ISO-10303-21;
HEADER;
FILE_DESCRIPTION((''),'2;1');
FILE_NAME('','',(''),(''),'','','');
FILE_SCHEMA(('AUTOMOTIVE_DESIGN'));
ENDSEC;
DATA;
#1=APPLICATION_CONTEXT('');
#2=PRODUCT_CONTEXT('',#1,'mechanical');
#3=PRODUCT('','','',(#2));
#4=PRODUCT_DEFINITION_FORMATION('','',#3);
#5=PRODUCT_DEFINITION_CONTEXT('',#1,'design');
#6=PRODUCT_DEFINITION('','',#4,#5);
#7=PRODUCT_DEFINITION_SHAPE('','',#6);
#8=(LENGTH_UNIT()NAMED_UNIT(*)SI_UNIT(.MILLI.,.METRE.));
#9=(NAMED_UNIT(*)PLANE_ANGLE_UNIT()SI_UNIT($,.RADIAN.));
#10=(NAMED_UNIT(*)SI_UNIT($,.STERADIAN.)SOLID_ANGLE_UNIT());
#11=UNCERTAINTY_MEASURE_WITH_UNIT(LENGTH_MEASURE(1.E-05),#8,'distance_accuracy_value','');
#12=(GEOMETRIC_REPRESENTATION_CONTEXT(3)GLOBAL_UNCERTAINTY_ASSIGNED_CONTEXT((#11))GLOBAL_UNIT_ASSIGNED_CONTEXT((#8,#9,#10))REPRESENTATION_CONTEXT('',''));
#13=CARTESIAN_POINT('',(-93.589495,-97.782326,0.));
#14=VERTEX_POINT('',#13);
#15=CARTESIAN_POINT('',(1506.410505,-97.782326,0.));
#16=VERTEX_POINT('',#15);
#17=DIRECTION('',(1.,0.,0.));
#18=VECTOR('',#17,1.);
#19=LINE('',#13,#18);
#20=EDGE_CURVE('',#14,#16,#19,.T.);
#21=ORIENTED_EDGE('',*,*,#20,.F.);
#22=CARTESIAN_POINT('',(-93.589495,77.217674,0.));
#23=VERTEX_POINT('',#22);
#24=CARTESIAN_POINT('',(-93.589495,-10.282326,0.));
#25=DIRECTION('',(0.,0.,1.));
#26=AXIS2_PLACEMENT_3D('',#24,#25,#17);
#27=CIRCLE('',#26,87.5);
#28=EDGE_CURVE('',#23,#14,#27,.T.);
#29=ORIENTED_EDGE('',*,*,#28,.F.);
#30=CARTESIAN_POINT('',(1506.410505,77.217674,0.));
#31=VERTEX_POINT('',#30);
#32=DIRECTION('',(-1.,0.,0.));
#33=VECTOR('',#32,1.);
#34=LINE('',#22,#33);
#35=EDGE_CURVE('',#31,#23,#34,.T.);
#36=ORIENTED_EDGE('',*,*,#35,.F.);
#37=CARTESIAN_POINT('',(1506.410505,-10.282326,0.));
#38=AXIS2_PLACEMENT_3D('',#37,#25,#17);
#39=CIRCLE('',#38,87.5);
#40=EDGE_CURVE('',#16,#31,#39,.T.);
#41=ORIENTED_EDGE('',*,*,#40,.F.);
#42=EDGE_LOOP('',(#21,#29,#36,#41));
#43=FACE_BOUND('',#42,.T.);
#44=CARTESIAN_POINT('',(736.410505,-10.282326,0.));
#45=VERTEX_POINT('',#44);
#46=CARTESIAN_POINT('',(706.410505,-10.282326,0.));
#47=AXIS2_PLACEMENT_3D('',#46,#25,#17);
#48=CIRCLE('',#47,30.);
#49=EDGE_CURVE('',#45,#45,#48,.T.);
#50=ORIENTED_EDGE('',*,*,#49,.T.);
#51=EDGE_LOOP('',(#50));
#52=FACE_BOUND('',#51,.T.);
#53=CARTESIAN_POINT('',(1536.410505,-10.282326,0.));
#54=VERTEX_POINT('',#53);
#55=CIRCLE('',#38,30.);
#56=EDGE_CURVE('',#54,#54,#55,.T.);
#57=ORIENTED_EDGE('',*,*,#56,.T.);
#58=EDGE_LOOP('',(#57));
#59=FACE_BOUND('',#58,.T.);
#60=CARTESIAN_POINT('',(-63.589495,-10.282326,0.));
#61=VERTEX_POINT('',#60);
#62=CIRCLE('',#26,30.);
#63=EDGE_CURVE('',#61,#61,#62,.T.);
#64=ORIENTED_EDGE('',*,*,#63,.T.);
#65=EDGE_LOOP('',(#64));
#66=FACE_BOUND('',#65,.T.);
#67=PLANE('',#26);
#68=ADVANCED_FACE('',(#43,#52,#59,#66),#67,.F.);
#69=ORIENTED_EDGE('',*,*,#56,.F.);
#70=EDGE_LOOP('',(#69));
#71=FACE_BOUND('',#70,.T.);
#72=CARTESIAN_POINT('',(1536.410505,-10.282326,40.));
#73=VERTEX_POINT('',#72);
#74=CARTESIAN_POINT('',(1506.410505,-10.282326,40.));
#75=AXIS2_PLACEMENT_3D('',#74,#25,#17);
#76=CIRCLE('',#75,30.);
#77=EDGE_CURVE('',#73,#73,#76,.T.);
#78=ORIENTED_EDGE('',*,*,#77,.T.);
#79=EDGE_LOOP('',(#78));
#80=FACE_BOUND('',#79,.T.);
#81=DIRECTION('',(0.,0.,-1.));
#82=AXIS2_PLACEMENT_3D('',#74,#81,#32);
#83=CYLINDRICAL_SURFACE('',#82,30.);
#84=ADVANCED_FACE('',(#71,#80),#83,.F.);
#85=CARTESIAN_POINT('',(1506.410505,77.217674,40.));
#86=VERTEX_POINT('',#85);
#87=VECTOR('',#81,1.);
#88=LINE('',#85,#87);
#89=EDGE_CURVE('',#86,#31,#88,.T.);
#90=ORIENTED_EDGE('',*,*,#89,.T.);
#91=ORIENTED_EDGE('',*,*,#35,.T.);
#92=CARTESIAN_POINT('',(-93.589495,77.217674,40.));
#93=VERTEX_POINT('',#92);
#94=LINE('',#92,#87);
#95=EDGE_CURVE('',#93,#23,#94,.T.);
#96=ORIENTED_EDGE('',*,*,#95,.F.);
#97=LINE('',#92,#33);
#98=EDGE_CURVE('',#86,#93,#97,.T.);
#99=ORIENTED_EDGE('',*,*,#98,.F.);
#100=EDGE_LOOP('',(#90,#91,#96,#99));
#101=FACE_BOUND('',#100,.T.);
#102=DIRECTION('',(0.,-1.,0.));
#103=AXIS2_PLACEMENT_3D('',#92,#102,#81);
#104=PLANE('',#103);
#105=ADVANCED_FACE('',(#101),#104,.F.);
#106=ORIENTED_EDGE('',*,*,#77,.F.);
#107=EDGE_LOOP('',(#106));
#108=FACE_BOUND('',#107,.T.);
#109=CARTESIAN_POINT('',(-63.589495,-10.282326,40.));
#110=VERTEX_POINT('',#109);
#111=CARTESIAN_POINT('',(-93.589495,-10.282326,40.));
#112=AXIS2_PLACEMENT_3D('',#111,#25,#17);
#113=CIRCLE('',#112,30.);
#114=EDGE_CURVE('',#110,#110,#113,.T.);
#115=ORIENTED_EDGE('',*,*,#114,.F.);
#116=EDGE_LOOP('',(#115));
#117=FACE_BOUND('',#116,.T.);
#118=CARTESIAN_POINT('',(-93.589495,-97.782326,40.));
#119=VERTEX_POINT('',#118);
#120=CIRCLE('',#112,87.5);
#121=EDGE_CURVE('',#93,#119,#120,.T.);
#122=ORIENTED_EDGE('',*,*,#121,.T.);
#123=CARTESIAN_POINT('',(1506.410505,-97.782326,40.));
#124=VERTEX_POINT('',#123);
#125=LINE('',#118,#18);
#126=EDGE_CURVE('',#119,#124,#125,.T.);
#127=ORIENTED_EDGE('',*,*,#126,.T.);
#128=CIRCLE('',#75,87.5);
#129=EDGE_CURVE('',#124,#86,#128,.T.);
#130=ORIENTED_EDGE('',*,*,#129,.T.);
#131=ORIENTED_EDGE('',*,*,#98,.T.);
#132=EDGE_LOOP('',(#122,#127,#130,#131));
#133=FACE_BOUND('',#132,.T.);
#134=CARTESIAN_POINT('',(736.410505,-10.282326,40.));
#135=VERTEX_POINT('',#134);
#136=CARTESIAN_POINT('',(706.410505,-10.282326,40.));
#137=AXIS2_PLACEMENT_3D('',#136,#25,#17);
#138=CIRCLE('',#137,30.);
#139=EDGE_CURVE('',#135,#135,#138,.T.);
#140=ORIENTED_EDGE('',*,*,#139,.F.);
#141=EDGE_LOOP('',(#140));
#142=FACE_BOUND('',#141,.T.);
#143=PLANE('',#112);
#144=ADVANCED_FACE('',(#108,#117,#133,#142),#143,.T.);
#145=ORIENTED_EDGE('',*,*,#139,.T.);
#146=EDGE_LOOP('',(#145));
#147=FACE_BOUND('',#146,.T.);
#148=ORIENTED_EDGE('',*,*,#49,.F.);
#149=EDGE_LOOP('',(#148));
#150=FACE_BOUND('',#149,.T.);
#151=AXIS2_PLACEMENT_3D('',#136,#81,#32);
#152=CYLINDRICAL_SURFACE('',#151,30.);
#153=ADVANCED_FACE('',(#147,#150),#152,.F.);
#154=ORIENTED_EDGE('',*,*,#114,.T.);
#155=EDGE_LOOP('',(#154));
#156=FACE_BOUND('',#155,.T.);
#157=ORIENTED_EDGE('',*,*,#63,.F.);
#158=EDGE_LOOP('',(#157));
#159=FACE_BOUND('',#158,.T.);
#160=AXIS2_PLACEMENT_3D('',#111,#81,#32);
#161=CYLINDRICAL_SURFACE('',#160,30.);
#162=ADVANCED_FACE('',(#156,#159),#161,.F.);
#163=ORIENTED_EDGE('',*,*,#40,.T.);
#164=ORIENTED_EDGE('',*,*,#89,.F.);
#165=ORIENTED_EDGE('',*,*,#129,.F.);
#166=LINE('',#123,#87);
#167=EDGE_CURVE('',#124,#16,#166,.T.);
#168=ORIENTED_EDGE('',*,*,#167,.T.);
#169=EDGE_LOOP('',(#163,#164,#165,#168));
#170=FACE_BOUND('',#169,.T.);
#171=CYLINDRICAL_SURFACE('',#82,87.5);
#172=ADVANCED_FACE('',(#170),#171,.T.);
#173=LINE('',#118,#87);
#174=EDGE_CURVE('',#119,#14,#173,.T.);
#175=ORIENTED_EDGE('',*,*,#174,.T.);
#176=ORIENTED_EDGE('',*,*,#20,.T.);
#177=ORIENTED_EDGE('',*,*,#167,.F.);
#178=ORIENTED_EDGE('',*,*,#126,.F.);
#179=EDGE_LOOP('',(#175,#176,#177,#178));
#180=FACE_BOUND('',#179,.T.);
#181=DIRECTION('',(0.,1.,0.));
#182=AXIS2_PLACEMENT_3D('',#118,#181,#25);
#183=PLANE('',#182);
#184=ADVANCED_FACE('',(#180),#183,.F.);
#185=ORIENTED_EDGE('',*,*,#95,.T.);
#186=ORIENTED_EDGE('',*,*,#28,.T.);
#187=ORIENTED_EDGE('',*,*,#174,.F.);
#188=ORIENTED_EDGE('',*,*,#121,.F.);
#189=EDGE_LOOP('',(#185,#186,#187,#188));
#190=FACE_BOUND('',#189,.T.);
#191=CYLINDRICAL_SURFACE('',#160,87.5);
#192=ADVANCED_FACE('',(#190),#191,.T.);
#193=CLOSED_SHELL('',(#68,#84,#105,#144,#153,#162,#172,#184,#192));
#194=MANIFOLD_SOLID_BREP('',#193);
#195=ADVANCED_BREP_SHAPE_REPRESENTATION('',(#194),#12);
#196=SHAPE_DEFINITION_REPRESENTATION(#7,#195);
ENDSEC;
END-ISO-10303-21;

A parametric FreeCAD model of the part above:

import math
import FreeCAD as App
import Part
import Sketcher
Q = App.Units.Quantity

doc = App.newDocument("Part")
body = doc.addObject("PartDesign::Body", "Body")

# Sketch on XY plane
sketch1 = doc.addObject("Sketcher::SketchObject", "Sketch")
body.addObject(sketch1)
sketch1.AttachmentSupport = (doc.XY_Plane, [""])
sketch1.MapMode = "FlatFace"
sketch1.addGeometry(Part.LineSegment(App.Vector(1506, 77, 0), App.Vector(-94, 77, 0)), False)
sketch1.addGeometry(Part.ArcOfCircle(Part.Circle(App.Vector(-94, -10, 0), App.Vector(0, 0, 1), 88), math.radians(90), math.radians(270)), False)
sketch1.addGeometry(Part.LineSegment(App.Vector(-94, -98, 0), App.Vector(1506, -98, 0)), False)
sketch1.addGeometry(Part.ArcOfCircle(Part.Circle(App.Vector(1506, -10, 0), App.Vector(0, 0, 1), 88), math.radians(-90), math.radians(90)), False)
sketch1.addGeometry(Part.Circle(App.Vector(1506, -10, 0), App.Vector(0, 0, 1), 30), False)
sketch1.addGeometry(Part.Circle(App.Vector(706, -10, 0), App.Vector(0, 0, 1), 30), False)
sketch1.addGeometry(Part.Circle(App.Vector(-94, -10, 0), App.Vector(0, 0, 1), 30), False)
sketch1.addConstraint(Sketcher.Constraint("Tangent", 0, 2, 1, 1))
sketch1.addConstraint(Sketcher.Constraint("Tangent", 1, 2, 2, 1))
sketch1.addConstraint(Sketcher.Constraint("Tangent", 2, 2, 3, 1))
sketch1.addConstraint(Sketcher.Constraint("Tangent", 3, 2, 0, 1))
sketch1.addConstraint(Sketcher.Constraint("Horizontal", 0))
sketch1.addConstraint(Sketcher.Constraint("Horizontal", 2))
sketch1.addConstraint(Sketcher.Constraint("Coincident", 4, 3, 3, 3))
sketch1.addConstraint(Sketcher.Constraint("Coincident", 6, 3, 1, 3))
sketch1.addConstraint(Sketcher.Constraint("Equal", 4, 5))
sketch1.addConstraint(Sketcher.Constraint("Equal", 5, 6))
sketch1.addConstraint(Sketcher.Constraint("Horizontal", 4, 3, 5, 3))
sketch1.addConstraint(Sketcher.Constraint("Diameter", 4, Q("60 mm")))
sketch1.addConstraint(Sketcher.Constraint("Radius", 1, Q("87.5 mm")))
sketch1.addConstraint(Sketcher.Constraint("DistanceX", 0, 2, 0, 1, Q("1600 mm")))
sketch1.addConstraint(Sketcher.Constraint("DistanceX", 5, 3, 3, 3, Q("800 mm")))
sketch1.addConstraint(Sketcher.Constraint("DistanceX", 1, 3, -1, 1, Q("93.589495 mm")))
sketch1.addConstraint(Sketcher.Constraint("DistanceY", 1, 3, -1, 1, Q("10.282326 mm")))
pad1 = doc.addObject("PartDesign::Pad", "Pad")
body.addObject(pad1)
pad1.Profile = sketch1
pad1.Length = 40

doc.recompute()
